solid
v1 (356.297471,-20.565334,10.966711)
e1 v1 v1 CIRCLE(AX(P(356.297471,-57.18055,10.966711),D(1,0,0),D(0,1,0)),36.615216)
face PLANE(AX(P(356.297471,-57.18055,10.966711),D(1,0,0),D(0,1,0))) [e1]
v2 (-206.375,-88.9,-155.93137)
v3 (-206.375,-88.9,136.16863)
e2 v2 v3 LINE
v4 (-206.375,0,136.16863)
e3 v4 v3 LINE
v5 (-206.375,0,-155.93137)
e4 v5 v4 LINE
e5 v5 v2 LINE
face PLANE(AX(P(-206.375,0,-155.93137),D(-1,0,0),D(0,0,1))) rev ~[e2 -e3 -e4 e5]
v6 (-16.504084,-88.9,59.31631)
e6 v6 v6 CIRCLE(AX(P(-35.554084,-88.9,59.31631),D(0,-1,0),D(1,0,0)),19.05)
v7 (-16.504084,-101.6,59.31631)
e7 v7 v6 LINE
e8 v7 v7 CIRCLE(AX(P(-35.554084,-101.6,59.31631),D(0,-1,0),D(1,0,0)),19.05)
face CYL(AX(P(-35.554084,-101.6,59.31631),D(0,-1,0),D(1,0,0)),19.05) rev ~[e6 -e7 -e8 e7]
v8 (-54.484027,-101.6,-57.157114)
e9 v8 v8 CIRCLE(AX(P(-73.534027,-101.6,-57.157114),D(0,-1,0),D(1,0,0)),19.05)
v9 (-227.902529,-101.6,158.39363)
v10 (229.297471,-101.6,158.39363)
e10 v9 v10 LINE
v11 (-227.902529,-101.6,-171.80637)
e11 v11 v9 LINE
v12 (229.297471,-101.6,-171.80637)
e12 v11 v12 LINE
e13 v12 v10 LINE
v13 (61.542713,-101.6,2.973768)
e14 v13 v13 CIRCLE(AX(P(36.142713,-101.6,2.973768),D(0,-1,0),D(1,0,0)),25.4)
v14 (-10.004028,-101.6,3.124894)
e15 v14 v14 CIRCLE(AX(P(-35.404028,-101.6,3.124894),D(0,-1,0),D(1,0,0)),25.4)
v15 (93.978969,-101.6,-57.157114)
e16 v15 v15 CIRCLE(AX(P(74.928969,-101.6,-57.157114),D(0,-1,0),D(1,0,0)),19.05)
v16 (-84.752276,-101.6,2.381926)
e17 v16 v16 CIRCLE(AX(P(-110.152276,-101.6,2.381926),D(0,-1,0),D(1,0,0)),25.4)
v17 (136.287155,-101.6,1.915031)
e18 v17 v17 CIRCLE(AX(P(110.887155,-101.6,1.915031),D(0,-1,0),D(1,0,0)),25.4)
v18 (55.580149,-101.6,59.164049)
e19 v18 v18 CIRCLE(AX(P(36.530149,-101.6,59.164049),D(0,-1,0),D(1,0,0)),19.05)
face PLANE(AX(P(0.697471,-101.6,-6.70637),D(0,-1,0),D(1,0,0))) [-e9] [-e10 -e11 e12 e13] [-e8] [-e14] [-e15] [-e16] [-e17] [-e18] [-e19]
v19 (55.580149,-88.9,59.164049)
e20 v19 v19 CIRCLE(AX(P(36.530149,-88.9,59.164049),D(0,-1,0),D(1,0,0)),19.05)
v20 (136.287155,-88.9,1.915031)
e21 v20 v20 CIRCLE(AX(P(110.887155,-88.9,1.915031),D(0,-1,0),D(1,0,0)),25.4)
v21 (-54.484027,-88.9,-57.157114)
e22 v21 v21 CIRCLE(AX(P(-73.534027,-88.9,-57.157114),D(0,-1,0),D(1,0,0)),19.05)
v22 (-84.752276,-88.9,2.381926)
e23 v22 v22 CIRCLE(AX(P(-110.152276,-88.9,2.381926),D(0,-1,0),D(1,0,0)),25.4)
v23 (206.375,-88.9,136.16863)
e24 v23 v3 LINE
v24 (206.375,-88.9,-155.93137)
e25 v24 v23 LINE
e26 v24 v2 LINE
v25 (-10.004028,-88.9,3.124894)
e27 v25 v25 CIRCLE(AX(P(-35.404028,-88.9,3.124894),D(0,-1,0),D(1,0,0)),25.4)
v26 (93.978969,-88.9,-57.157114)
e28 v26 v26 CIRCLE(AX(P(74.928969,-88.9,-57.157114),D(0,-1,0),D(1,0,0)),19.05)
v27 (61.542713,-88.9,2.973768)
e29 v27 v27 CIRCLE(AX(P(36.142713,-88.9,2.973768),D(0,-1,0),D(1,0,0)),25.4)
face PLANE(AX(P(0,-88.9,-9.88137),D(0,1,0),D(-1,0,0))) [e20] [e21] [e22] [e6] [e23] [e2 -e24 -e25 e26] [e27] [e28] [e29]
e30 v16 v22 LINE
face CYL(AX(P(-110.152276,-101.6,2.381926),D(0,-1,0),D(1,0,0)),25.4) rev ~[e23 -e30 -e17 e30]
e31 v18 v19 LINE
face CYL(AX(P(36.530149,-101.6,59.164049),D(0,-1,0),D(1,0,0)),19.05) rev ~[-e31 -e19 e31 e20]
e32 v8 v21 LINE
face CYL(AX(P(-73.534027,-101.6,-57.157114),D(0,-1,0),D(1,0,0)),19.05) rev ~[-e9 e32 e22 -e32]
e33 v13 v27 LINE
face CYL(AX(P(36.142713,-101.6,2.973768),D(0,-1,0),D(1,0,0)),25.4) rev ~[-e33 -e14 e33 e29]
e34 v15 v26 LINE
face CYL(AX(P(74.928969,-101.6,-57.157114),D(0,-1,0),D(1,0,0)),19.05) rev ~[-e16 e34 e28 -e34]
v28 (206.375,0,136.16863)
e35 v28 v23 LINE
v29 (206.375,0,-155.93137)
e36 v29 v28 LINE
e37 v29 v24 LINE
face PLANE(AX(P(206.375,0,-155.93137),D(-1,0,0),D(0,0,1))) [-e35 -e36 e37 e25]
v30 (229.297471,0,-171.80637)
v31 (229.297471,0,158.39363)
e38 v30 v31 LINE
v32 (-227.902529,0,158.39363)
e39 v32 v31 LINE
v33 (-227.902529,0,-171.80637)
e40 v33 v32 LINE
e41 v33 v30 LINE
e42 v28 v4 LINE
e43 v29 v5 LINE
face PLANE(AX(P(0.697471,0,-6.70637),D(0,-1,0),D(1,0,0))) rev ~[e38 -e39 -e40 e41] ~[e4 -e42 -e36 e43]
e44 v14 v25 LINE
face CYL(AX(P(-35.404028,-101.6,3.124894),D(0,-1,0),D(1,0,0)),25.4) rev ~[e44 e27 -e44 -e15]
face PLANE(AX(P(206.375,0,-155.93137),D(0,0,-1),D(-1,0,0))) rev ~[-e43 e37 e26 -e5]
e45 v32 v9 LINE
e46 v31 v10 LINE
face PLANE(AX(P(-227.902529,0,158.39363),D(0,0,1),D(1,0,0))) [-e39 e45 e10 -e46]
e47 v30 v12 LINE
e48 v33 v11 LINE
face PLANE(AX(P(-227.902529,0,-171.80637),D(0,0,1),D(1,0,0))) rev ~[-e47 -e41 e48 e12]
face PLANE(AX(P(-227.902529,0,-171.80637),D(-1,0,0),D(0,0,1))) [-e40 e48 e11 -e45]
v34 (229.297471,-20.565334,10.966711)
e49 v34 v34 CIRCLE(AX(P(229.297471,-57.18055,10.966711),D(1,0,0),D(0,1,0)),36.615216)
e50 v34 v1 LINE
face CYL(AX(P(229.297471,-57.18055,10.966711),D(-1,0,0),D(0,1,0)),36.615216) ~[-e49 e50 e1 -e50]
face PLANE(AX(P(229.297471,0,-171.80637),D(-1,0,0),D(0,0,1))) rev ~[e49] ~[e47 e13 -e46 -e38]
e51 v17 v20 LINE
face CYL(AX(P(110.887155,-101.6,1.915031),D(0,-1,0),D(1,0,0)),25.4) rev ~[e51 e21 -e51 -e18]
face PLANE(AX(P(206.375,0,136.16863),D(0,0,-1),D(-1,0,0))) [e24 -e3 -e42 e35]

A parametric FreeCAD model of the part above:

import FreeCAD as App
import Part
import Sketcher
from FreeCAD import Vector
Q = App.Units.Quantity

doc = App.newDocument("Part")
params = doc.addObject("Spreadsheet::Sheet", "Params")
for row, (alias, value) in enumerate([
    ("sketch1_width", "18 in"),
    ("sketch1_height", "13 in"),
    ("pad1_length", "4 in"),
    ("sketch2_height", "11.5 in"),
    ("sketch2_width", "16.25 in"),
    ("pocket1_length", "3.5 in"),
    ("sketch3_diameter", "2 in"),
    ("sketch3_diameter2", "1.5 in"),
    ("pad2_length", "5 in"),
], start=1):
    params.set(f"A{row}", alias)
    params.set(f"B{row}", "=" + value)
    params.setAlias(f"B{row}", alias)

body = doc.addObject("PartDesign::Body", "Body")

sketch1 = body.newObject("Sketcher::SketchObject", "Sketch")
sketch1.AttachmentSupport = (doc.getObject("XZ_Plane"), [""])
sketch1.MapMode = "FlatFace"
sketch1.addGeometry([
    Part.LineSegment(Vector(-228, 158, 0), Vector(-228, -172, 0)),
    Part.LineSegment(Vector(-228, -172, 0), Vector(229, -172, 0)),
    Part.LineSegment(Vector(229, -172, 0), Vector(229, 158, 0)),
    Part.LineSegment(Vector(229, 158, 0), Vector(-228, 158, 0)),
], False)
sketch1.addConstraint([
    Sketcher.Constraint("Coincident", 0, 2, 1, 1),
    Sketcher.Constraint("Coincident", 1, 2, 2, 1),
    Sketcher.Constraint("Coincident", 2, 2, 3, 1),
    Sketcher.Constraint("Coincident", 3, 2, 0, 1),
    Sketcher.Constraint("Vertical", 0),
    Sketcher.Constraint("Horizontal", 1),
    Sketcher.Constraint("Vertical", 2),
    Sketcher.Constraint("Horizontal", 3),
    Sketcher.Constraint("DistanceX", 1, 1, 1, 2, Q("18 in")),
    Sketcher.Constraint("DistanceY", 0, 2, 0, 1, Q("13 in")),
    Sketcher.Constraint("DistanceX", 0, 2, -1, 1, 227.902529),
    Sketcher.Constraint("DistanceY", 0, 2, -1, 1, 171.80637),
])
sketch1.setExpression("Constraints[8]", "Params.sketch1_width")
sketch1.setExpression("Constraints[9]", "Params.sketch1_height")
pad1 = body.newObject("PartDesign::Pad", "Pad")
pad1.Profile = sketch1
pad1.setExpression("Length", "Params.pad1_length")

sketch2 = body.newObject("Sketcher::SketchObject", "Sketch001")
sketch2.AttachmentSupport = (doc.getObject("XZ_Plane"), [""])
sketch2.MapMode = "FlatFace"
sketch2.addGeometry([
    Part.LineSegment(Vector(206, 136, 0), Vector(206, -156, 0)),
    Part.LineSegment(Vector(206, -156, 0), Vector(-206, -156, 0)),
    Part.LineSegment(Vector(-206, -156, 0), Vector(-206, 136, 0)),
    Part.LineSegment(Vector(-206, 136, 0), Vector(206, 136, 0)),
], False)
sketch2.addConstraint([
    Sketcher.Constraint("Coincident", 0, 2, 1, 1),
    Sketcher.Constraint("Coincident", 1, 2, 2, 1),
    Sketcher.Constraint("Coincident", 2, 2, 3, 1),
    Sketcher.Constraint("Coincident", 3, 2, 0, 1),
    Sketcher.Constraint("Vertical", 0),
    Sketcher.Constraint("Horizontal", 1),
    Sketcher.Constraint("Vertical", 2),
    Sketcher.Constraint("Horizontal", 3),
    Sketcher.Constraint("DistanceY", 0, 2, 0, 1, Q("11.5 in")),
    Sketcher.Constraint("DistanceX", 1, 2, 1, 1, Q("16.25 in")),
    Sketcher.Constraint("DistanceX", -1, 1, 0, 2, Q("8.125 in")),
    Sketcher.Constraint("DistanceY", 0, 2, -1, 1, 155.93137),
])
sketch2.setExpression("Constraints[8]", "Params.sketch2_height")
sketch2.setExpression("Constraints[9]", "Params.sketch2_width")
pocket1 = body.newObject("PartDesign::Pocket", "Pocket")
pocket1.Profile = sketch2
pocket1.setExpression("Length", "Params.pocket1_length")
pocket1.Reversed = True

sketch3 = body.newObject("Sketcher::SketchObject", "Sketch002")
sketch3.AttachmentSupport = (doc.getObject("XZ_Plane"), [""])
sketch3.MapMode = "FlatFace"
sketch3.AttachmentOffset = App.Placement(Vector(0, 0, 4 * 25.4), App.Rotation())
sketch3.addGeometry([
    Part.Circle(Vector(-35, 3, 0), Vector(0, 0, 1), 25),
    Part.Circle(Vector(-110, 2, 0), Vector(0, 0, 1), 25),
    Part.Circle(Vector(-36, 59, 0), Vector(0, 0, 1), 19),
    Part.Circle(Vector(-74, -57, 0), Vector(0, 0, 1), 19),
    Part.Circle(Vector(37, 59, 0), Vector(0, 0, 1), 19),
    Part.Circle(Vector(111, 2, 0), Vector(0, 0, 1), 25),
    Part.Circle(Vector(36, 3, 0), Vector(0, 0, 1), 25),
    Part.Circle(Vector(75, -57, 0), Vector(0, 0, 1), 19),
], False)
sketch3.addConstraint([
    Sketcher.Constraint("Equal", 0, 1),
    Sketcher.Constraint("Equal", 2, 3),
    Sketcher.Constraint("Equal", 3, 4),
    Sketcher.Constraint("Equal", 1, 5),
    Sketcher.Constraint("Equal", 5, 6),
    Sketcher.Constraint("Equal", 4, 7),
    Sketcher.Constraint("Horizontal", 3, 3, 7, 3),
    Sketcher.Constraint("Diameter", 0, Q("2 in")),
    Sketcher.Constraint("Diameter", 2, Q("1.5 in")),
    Sketcher.Constraint("DistanceX", 3, 3, 7, 3, Q("5.8449998 in")),
    Sketcher.Constraint("DistanceX", 3, 3, 0, 3, 38.129999),
    Sketcher.Constraint("DistanceY", -1, 1, 2, 3, 59.31631),
    Sketcher.Constraint("DistanceX", -1, 1, 4, 3, 36.530149),
    Sketcher.Constraint("DistanceY", -1, 1, 4, 3, 59.164049),
    Sketcher.Constraint("DistanceY", -1, 1, 5, 3, 1.915031),
    Sketcher.Constraint("DistanceY", -1, 1, 6, 3, 2.973768),
    Sketcher.Constraint("DistanceX", -1, 1, 7, 3, 74.928969),
    Sketcher.Constraint("DistanceX", 1, 3, 0, 3, 74.748248),
    Sketcher.Constraint("DistanceX", 1, 3, 2, 3, 74.598192),
    Sketcher.Constraint("DistanceY", 3, 3, 1, 3, 59.53904),
    Sketcher.Constraint("DistanceX", 2, 3, 5, 3, 146.441239),
    Sketcher.Constraint("DistanceX", 0, 3, 6, 3, 71.546741),
    Sketcher.Constraint("DistanceY", -1, 1, 0, 3, 3.124894),
    Sketcher.Constraint("DistanceY", -1, 1, 1, 3, 2.381926),
])
sketch3.setExpression("Constraints[7]", "Params.sketch3_diameter")
sketch3.setExpression("Constraints[8]", "Params.sketch3_diameter2")
pocket2 = body.newObject("PartDesign::Pocket", "Pocket001")
pocket2.Profile = sketch3
pocket2.Type = "ThroughAll"

sketch4 = body.newObject("Sketcher::SketchObject", "Sketch003")
sketch4.AttachmentSupport = (doc.getObject("YZ_Plane"), [""])
sketch4.MapMode = "FlatFace"
sketch4.AttachmentOffset = App.Placement(Vector(0, 0, 229.297471), App.Rotation())
sketch4.addGeometry(Part.Circle(Vector(-57, 11, 0), Vector(0, 0, 1), 37), False)
sketch4.addConstraint([
    Sketcher.Constraint("Diameter", 0, 73.230432),
    Sketcher.Constraint("DistanceX", 0, 3, -1, 1, 57.18055),
    Sketcher.Constraint("DistanceY", -1, 1, 0, 3, 10.966711),
])
pad2 = body.newObject("PartDesign::Pad", "Pad001")
pad2.Profile = sketch4
pad2.setExpression("Length", "Params.pad2_length")

doc.recompute()
